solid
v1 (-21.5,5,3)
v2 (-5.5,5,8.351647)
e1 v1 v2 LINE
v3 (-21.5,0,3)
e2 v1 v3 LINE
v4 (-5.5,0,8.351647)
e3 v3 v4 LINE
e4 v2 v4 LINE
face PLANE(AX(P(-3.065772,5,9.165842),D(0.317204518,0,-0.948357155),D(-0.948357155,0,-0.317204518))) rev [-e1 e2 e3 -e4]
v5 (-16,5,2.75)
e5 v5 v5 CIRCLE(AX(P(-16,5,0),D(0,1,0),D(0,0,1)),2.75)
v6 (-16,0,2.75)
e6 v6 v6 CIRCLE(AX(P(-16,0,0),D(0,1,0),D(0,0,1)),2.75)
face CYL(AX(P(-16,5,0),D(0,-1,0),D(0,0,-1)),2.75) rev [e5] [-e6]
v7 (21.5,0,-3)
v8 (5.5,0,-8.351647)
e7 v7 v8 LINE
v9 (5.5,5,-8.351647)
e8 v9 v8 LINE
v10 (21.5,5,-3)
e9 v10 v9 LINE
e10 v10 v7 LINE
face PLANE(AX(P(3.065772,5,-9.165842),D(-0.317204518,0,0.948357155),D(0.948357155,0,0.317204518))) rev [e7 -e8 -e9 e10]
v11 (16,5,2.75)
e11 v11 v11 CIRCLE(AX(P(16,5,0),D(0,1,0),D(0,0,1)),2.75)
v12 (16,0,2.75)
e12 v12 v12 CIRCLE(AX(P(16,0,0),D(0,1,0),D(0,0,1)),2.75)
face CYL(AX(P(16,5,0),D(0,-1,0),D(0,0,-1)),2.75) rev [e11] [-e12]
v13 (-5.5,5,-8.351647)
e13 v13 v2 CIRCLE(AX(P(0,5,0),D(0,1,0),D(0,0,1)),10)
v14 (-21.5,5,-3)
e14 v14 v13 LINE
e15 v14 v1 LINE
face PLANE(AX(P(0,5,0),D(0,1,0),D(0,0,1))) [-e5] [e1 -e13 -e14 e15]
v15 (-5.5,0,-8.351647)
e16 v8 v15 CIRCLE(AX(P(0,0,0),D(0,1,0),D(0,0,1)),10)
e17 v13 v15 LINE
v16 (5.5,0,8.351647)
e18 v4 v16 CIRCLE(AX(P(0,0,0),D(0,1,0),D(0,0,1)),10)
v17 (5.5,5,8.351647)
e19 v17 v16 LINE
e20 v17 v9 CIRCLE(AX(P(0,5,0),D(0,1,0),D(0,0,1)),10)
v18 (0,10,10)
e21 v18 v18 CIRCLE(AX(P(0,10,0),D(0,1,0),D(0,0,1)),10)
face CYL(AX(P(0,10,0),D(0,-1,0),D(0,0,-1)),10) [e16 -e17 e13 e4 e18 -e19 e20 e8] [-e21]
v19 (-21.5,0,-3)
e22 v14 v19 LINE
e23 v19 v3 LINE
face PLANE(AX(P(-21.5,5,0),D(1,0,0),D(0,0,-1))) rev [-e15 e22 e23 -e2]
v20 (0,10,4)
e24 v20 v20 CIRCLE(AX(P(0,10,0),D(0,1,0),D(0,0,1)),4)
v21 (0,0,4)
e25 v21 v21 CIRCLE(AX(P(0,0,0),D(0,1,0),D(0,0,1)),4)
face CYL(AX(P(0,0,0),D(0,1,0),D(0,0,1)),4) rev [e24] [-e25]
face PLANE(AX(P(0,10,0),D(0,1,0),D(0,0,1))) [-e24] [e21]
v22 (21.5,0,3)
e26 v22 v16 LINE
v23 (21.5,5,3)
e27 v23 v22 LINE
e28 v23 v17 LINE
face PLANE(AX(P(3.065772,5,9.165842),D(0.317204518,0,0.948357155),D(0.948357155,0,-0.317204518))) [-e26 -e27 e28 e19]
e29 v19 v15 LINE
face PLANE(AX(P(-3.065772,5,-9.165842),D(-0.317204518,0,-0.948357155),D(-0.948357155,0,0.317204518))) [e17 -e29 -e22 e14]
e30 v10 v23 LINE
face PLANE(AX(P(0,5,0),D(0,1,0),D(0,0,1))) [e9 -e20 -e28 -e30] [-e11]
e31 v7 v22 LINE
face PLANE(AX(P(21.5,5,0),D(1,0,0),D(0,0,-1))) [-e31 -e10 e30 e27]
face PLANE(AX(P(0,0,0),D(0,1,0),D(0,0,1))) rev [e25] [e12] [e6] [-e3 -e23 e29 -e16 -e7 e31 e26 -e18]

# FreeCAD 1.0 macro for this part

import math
import FreeCAD as App
import Part
import Sketcher

doc = App.newDocument("Part")
body = doc.addObject("PartDesign::Body", "Body")

# Sketch on XZ plane
sketch1 = body.newObject("Sketcher::SketchObject", "Sketch")
sketch1.AttachmentSupport = (doc.getObject("XZ_Plane"), [""])
sketch1.MapMode = "FlatFace"
sketch1.addGeometry(Part.LineSegment(App.Vector(21.5, 3, 0), App.Vector(21.5, -3, 0)), False)
sketch1.addGeometry(Part.LineSegment(App.Vector(21.5, -3, 0), App.Vector(5.5, -8.4, 0)), False)
sketch1.addGeometry(Part.ArcOfCircle(Part.Circle(App.Vector(0, 0, 0), App.Vector(0, 0, 1), 10), math.radians(-57), math.radians(0)), False)
sketch1.addGeometry(Part.ArcOfCircle(Part.Circle(App.Vector(0, 0, 0), App.Vector(0, 0, 1), 10), math.radians(0), math.radians(57)), False)
sketch1.addGeometry(Part.LineSegment(App.Vector(5.5, 8.4, 0), App.Vector(21.5, 3, 0)), False)
sketch1.addGeometry(Part.Circle(App.Vector(16, 0, 0), App.Vector(0, 0, 1), 2.8), False)
sketch1.addConstraint(Sketcher.Constraint("Coincident", 0, 2, 1, 1))
sketch1.addConstraint(Sketcher.Constraint("Coincident", 1, 2, 2, 1))
sketch1.addConstraint(Sketcher.Constraint("Tangent", 2, 2, 3, 1))
sketch1.addConstraint(Sketcher.Constraint("Coincident", 3, 2, 4, 1))
sketch1.addConstraint(Sketcher.Constraint("Coincident", 4, 2, 0, 1))
sketch1.addConstraint(Sketcher.Constraint("Vertical", 0))
sketch1.addConstraint(Sketcher.Constraint("Coincident", 2, 3, -1, 1))
sketch1.addConstraint(Sketcher.Constraint("Equal", 2, 3))
sketch1.addConstraint(Sketcher.Constraint("PointOnObject", 5, 3, -1))
sketch1.addConstraint(Sketcher.Constraint("PointOnObject", 2, 2, -1))
sketch1.addConstraint(Sketcher.Constraint("Vertical", 1, 2, 3, 2))
sketch1.addConstraint(Sketcher.Constraint("Equal", 1, 4))
sketch1.addConstraint(Sketcher.Constraint("Radius", 2, 10.0))
sketch1.addConstraint(Sketcher.Constraint("Diameter", 5, 5.5))
sketch1.addConstraint(Sketcher.Constraint("DistanceY", 0, 2, 0, 1, 6.0))
sketch1.addConstraint(Sketcher.Constraint("DistanceX", -1, 1, 5, 3, 16.0))
sketch1.addConstraint(Sketcher.Constraint("DistanceX", 1, 2, 0, 2, 16.0))
sketch1.addConstraint(Sketcher.Constraint("DistanceX", -1, 1, 0, 2, 21.5))
pad1 = body.newObject("PartDesign::Pad", "Pad")
pad1.Profile = sketch1
pad1.Length = 5
pad1.Reversed = True
body2 = doc.addObject("PartDesign::Body", "Body001")

# Sketch on XZ plane
sketch2 = body2.newObject("Sketcher::SketchObject", "Sketch001")
sketch2.AttachmentSupport = (doc.getObject("XZ_Plane001"), [""])
sketch2.MapMode = "FlatFace"
sketch2.addGeometry(Part.ArcOfCircle(Part.Circle(App.Vector(0, 0, 0), App.Vector(0, 0, 1), 10), math.radians(123), math.radians(237)), False)
sketch2.addGeometry(Part.LineSegment(App.Vector(-5.5, -8.4, 0), App.Vector(-21.5, -3, 0)), False)
sketch2.addGeometry(Part.LineSegment(App.Vector(-21.5, -3, 0), App.Vector(-21.5, 3, 0)), False)
sketch2.addGeometry(Part.LineSegment(App.Vector(-21.5, 3, 0), App.Vector(-5.5, 8.4, 0)), False)
sketch2.addGeometry(Part.Circle(App.Vector(-16, 0, 0), App.Vector(0, 0, 1), 2.8), False)
sketch2.addConstraint(Sketcher.Constraint("Coincident", 0, 2, 1, 1))
sketch2.addConstraint(Sketcher.Constraint("Coincident", 1, 2, 2, 1))
sketch2.addConstraint(Sketcher.Constraint("Coincident", 2, 2, 3, 1))
sketch2.addConstraint(Sketcher.Constraint("Coincident", 3, 2, 0, 1))
sketch2.addConstraint(Sketcher.Constraint("Vertical", 2))
sketch2.addConstraint(Sketcher.Constraint("Coincident", 0, 3, -1, 1))
sketch2.addConstraint(Sketcher.Constraint("PointOnObject", 4, 3, -1))
sketch2.addConstraint(Sketcher.Constraint("Vertical", 0, 2, 3, 2))
sketch2.addConstraint(Sketcher.Constraint("Equal", 1, 3))
sketch2.addConstraint(Sketcher.Constraint("Radius", 0, 10.0))
sketch2.addConstraint(Sketcher.Constraint("Diameter", 4, 5.5))
sketch2.addConstraint(Sketcher.Constraint("DistanceY", 2, 1, 2, 2, 6.0))
sketch2.addConstraint(Sketcher.Constraint("DistanceX", 4, 3, -1, 1, 16.0))
sketch2.addConstraint(Sketcher.Constraint("DistanceX", 1, 2, 0, 2, 16.0))
sketch2.addConstraint(Sketcher.Constraint("DistanceX", 0, 2, -1, 1, 5.5))
pad2 = body2.newObject("PartDesign::Pad", "Pad001")
pad2.Profile = sketch2
pad2.Length = 5
pad2.Reversed = True
body.AllowCompound = True
doc.recompute()

boolean = body.newObject("PartDesign::Boolean", "Boolean")
boolean.Type = "Fuse"
boolean.addObjects([body2])

# Sketch on XZ plane
sketch3 = body.newObject("Sketcher::SketchObject", "Sketch002")
sketch3.AttachmentSupport = (doc.getObject("XZ_Plane"), [""])
sketch3.MapMode = "FlatFace"
sketch3.addGeometry(Part.Circle(App.Vector(0, 0, 0), App.Vector(0, 0, 1), 10), False)
sketch3.addConstraint(Sketcher.Constraint("Coincident", 0, 3, -1, 1))
sketch3.addConstraint(Sketcher.Constraint("Diameter", 0, 20.0))
pad3 = body.newObject("PartDesign::Pad", "Pad002")
pad3.Profile = sketch3
pad3.Length = 10
pad3.Reversed = True

# Sketch on XZ plane
sketch4 = body.newObject("Sketcher::SketchObject", "Sketch003")
sketch4.AttachmentSupport = (doc.getObject("XZ_Plane"), [""])
sketch4.MapMode = "FlatFace"
sketch4.AttachmentOffset = App.Placement(App.Vector(0, 0, -10), App.Rotation())
sketch4.addGeometry(Part.Circle(App.Vector(0, 0, 0), App.Vector(0, 0, 1), 4), False)
sketch4.addConstraint(Sketcher.Constraint("Coincident", 0, 3, -1, 1))
sketch4.addConstraint(Sketcher.Constraint("Diameter", 0, 8.0))
pocket1 = body.newObject("PartDesign::Pocket", "Pocket")
pocket1.Profile = sketch4
pocket1.Type = "ThroughAll"
pocket1.Reversed = True

doc.recompute()
